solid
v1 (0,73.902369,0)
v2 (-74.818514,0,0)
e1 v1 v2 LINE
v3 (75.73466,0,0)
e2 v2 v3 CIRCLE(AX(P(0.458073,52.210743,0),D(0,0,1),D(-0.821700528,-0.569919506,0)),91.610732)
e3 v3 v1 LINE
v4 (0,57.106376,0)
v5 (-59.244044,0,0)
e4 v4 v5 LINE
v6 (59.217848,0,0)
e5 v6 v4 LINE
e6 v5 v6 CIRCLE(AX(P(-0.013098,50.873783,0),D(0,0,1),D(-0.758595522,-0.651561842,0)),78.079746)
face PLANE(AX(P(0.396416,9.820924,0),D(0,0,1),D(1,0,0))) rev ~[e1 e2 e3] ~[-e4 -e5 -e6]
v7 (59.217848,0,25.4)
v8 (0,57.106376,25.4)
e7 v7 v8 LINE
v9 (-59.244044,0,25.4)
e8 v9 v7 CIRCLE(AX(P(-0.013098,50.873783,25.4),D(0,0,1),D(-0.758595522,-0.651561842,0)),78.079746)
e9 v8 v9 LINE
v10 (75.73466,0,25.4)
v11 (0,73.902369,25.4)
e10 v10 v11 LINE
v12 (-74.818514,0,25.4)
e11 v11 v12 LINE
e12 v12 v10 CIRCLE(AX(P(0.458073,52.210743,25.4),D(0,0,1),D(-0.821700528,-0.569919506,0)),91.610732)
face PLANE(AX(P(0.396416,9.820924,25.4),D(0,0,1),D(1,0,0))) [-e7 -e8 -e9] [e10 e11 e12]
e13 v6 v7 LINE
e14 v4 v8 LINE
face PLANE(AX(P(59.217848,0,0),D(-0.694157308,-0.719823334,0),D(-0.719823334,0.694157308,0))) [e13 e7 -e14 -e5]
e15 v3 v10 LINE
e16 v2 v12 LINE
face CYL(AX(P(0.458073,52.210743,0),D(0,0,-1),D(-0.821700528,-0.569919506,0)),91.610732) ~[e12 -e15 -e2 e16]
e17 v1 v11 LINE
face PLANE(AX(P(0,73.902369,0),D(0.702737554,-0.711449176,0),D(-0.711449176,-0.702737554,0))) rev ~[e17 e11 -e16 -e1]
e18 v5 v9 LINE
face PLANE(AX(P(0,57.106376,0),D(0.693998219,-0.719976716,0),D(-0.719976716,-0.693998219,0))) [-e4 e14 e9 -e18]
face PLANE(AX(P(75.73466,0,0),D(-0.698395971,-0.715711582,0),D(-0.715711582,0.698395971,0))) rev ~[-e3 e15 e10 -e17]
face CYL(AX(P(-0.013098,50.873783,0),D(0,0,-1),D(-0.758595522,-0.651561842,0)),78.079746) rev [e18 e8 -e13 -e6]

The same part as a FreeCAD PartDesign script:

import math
import FreeCAD as App
import Part
import Sketcher
from FreeCAD import Vector
Q = App.Units.Quantity

doc = App.newDocument("Part")
body = doc.addObject("PartDesign::Body", "Body")

# Sketch on XY plane
sketch1 = body.newObject("Sketcher::SketchObject", "Sketch")
sketch1.AttachmentSupport = (doc.getObject("XY_Plane"), [""])
sketch1.MapMode = "FlatFace"
sketch1.addGeometry([
    Part.LineSegment(Vector(76, 0, 0), Vector(0, 74, 0)),
    Part.LineSegment(Vector(0, 74, 0), Vector(-75, 0, 0)),
    Part.ArcOfCircle(Part.Circle(Vector(0, 52, 0), Vector(0, 0, 1), 92), math.radians(-145), math.radians(-35)),
], False)
sketch1.addConstraint([
    Sketcher.Constraint("Coincident", 0, 2, 1, 1),
    Sketcher.Constraint("Coincident", 1, 2, 2, 1),
    Sketcher.Constraint("Coincident", 2, 2, 0, 1),
    Sketcher.Constraint("PointOnObject", 0, 2, -2),
    Sketcher.Constraint("PointOnObject", 1, 2, -1),
    Sketcher.Constraint("PointOnObject", 2, 2, -1),
    Sketcher.Constraint("Radius", 2, Q("91.610732 mm")),
    Sketcher.Constraint("Distance", 0, Q("105.81729 mm")),
    Sketcher.Constraint("Distance", 1, Q("105.16354 mm")),
    Sketcher.Constraint("DistanceY", -1, 1, 0, 2, Q("73.902369 mm")),
])
pad1 = body.newObject("PartDesign::Pad", "Pad")
pad1.Profile = sketch1
pad1.Length = Q("1 in")

# Sketch on XY plane
sketch2 = body.newObject("Sketcher::SketchObject", "Sketch001")
sketch2.AttachmentSupport = (doc.getObject("XY_Plane"), [""])
sketch2.MapMode = "FlatFace"
sketch2.addGeometry([
    Part.LineSegment(Vector(64, 0, 0), Vector(0, 63, 0)),
    Part.LineSegment(Vector(0, 63, 0), Vector(-62, 0, 0)),
    Part.ArcOfCircle(Part.Circle(Vector(1, 46, 0), Vector(0, 0, 1), 78), math.radians(-143), math.radians(-36)),
], False)
sketch2.addConstraint([
    Sketcher.Constraint("Coincident", 0, 2, 1, 1),
    Sketcher.Constraint("Coincident", 1, 2, 2, 1),
    Sketcher.Constraint("Coincident", 2, 2, 0, 1),
    Sketcher.Constraint("PointOnObject", 0, 2, -2),
    Sketcher.Constraint("PointOnObject", 2, 2, -1),
    Sketcher.Constraint("Perpendicular", 0, 1),
    Sketcher.Constraint("Radius", 2, Q("78.304982 mm")),
    Sketcher.Constraint("Distance", 1, Q("88.56905 mm")),
    Sketcher.Constraint("DistanceX", 1, 2, 2, 3, Q("62.936929 mm")),
    Sketcher.Constraint("DistanceX", 2, 3, 2, 2, Q("63.065809 mm")),
])
pocket1 = body.newObject("PartDesign::Pocket", "Pocket")
pocket1.Profile = sketch2
pocket1.Length = Q("1 in")

# Sketch on XY plane
sketch3 = body.newObject("Sketcher::SketchObject", "Sketch002")
sketch3.AttachmentSupport = (doc.getObject("XY_Plane"), [""])
sketch3.MapMode = "FlatFace"
sketch3.addGeometry([
    Part.LineSegment(Vector(59, 0, 0), Vector(0, 57, 0)),
    Part.LineSegment(Vector(0, 57, 0), Vector(-59, 0, 0)),
    Part.ArcOfCircle(Part.Circle(Vector(0, 51, 0), Vector(0, 0, 1), 78), math.radians(-139), math.radians(-41)),
], False)
sketch3.addConstraint([
    Sketcher.Constraint("Coincident", 0, 2, 1, 1),
    Sketcher.Constraint("Coincident", 1, 2, 2, 1),
    Sketcher.Constraint("Coincident", 2, 2, 0, 1),
    Sketcher.Constraint("PointOnObject", 0, 2, -2),
    Sketcher.Constraint("PointOnObject", 1, 2, -1),
    Sketcher.Constraint("PointOnObject", 2, 2, -1),
    Sketcher.Constraint("Radius", 2, Q("78.079746 mm")),
    Sketcher.Constraint("DistanceX", 1, 2, 2, 2, Q("118.461892 mm")),
    Sketcher.Constraint("Distance", 0, Q("82.267197 mm")),
    Sketcher.Constraint("Distance", 1, Q("82.286055 mm")),
])
pocket2 = body.newObject("PartDesign::Pocket", "Pocket001")
pocket2.Profile = sketch3
pocket2.Length = Q("1 in")
pocket2.Reversed = True

doc.recompute()
